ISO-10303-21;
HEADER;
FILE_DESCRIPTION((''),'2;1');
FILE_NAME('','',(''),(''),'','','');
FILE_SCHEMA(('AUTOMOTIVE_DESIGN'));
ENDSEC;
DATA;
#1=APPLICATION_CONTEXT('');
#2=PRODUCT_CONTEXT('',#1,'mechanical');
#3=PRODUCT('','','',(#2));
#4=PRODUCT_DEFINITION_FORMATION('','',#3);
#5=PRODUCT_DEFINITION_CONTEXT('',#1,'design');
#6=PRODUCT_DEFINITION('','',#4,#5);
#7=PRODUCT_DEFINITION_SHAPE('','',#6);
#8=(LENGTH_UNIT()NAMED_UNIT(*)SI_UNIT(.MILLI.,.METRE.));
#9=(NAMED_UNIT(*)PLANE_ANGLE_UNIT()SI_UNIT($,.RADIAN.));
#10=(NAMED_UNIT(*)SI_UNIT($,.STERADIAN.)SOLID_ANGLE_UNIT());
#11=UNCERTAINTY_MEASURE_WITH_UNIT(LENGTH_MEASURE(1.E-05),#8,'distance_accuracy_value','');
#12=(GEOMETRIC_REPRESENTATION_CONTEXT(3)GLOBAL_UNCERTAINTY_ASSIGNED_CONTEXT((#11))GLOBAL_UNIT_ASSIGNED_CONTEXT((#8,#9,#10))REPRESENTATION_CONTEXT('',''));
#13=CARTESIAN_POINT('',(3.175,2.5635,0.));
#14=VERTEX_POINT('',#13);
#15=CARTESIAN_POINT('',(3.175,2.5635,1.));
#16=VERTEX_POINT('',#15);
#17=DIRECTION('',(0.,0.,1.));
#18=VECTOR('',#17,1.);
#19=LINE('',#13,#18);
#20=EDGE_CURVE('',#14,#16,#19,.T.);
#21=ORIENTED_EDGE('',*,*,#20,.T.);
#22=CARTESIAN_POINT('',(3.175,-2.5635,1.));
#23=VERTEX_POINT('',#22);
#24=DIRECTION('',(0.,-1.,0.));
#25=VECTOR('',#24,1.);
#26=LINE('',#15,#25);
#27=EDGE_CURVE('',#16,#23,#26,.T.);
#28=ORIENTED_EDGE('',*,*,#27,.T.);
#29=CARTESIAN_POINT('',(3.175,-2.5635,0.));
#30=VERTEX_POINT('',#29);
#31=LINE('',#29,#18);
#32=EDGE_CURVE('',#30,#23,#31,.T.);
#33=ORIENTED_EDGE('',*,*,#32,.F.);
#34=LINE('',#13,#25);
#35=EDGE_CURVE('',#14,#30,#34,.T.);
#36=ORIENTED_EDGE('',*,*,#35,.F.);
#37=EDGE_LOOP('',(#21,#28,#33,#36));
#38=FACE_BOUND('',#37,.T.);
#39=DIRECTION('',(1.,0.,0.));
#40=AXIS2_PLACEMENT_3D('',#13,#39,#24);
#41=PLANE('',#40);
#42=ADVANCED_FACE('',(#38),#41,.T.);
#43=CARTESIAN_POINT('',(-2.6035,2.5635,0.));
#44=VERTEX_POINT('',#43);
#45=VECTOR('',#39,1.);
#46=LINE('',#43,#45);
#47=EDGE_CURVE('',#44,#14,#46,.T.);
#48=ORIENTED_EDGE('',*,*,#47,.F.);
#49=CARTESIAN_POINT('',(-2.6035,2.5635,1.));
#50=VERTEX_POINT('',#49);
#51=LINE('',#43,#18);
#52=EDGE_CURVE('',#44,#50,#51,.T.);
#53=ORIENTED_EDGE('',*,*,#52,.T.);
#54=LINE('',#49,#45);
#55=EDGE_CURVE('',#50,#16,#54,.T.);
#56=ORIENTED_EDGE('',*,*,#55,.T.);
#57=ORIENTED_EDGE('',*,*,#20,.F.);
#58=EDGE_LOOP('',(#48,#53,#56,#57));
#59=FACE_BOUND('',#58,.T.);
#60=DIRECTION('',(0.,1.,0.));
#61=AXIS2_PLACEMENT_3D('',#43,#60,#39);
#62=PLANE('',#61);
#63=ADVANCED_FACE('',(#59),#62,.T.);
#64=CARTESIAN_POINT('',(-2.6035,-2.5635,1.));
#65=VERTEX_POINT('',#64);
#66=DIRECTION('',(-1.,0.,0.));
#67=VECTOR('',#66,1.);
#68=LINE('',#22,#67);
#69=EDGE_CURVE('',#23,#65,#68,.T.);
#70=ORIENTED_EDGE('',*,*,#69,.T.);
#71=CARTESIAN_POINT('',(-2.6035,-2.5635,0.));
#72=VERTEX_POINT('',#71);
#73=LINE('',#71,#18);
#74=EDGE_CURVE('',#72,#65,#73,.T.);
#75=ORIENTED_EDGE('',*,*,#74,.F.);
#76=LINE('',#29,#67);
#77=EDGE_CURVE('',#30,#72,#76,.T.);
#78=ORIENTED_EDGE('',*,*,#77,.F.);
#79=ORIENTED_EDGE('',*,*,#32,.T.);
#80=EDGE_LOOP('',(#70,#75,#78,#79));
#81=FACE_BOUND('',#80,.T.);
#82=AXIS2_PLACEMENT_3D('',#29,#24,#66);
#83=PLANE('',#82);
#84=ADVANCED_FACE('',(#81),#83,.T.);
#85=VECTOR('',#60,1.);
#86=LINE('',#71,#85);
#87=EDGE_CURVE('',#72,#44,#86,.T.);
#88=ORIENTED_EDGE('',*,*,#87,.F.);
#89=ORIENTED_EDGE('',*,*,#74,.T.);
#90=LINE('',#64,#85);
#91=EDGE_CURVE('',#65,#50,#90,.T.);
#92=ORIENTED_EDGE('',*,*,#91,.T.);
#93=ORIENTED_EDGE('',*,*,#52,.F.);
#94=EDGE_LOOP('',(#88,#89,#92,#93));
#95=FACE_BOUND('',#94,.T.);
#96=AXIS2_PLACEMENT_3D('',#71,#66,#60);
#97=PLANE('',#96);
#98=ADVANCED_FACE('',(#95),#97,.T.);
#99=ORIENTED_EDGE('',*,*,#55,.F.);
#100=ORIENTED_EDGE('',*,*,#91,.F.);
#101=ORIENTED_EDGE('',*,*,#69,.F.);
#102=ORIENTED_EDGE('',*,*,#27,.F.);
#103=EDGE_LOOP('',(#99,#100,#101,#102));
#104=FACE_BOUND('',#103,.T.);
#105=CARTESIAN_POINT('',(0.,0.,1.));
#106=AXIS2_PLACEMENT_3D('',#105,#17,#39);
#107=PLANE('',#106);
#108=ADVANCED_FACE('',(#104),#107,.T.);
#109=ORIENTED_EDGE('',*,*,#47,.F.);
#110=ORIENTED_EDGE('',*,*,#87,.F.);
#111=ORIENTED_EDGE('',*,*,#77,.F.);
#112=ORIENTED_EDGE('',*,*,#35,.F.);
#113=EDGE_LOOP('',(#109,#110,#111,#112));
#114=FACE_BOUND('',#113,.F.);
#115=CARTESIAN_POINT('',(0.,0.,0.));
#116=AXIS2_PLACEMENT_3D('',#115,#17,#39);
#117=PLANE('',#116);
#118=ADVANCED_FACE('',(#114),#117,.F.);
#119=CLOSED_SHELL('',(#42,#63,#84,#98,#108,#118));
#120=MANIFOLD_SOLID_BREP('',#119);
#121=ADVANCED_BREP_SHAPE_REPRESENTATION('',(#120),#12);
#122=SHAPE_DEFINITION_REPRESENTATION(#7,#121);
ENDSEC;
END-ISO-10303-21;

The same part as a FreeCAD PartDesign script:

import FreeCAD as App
import Part
import Sketcher
Q = App.Units.Quantity

doc = App.newDocument("Part")
params = doc.addObject("Spreadsheet::Sheet", "Params")
for row, (alias, value) in enumerate([
    ("pad1_length", "1 mm"),
], start=1):
    params.set(f"A{row}", alias)
    params.set(f"B{row}", "=" + value)
    params.setAlias(f"B{row}", alias)

body = doc.addObject("PartDesign::Body", "Body")

# Sketch on XY plane
sketch1 = body.newObject("Sketcher::SketchObject", "Sketch")
sketch1.AttachmentSupport = (doc.getObject("XY_Plane"), [""])
sketch1.MapMode = "FlatFace"
sketch1.addGeometry([
    Part.LineSegment(App.Vector(3, 3, 0), App.Vector(-3, 3, 0)),
    Part.LineSegment(App.Vector(-3, 3, 0), App.Vector(-3, -3, 0)),
    Part.LineSegment(App.Vector(-3, -3, 0), App.Vector(3, -3, 0)),
    Part.LineSegment(App.Vector(3, -3, 0), App.Vector(3, 3, 0)),
], False)
sketch1.addConstraint([
    Sketcher.Constraint("Coincident", 0, 2, 1, 1),
    Sketcher.Constraint("Coincident", 1, 2, 2, 1),
    Sketcher.Constraint("Coincident", 2, 2, 3, 1),
    Sketcher.Constraint("Coincident", 3, 2, 0, 1),
    Sketcher.Constraint("Horizontal", 0),
    Sketcher.Constraint("Vertical", 1),
    Sketcher.Constraint("Horizontal", 2),
    Sketcher.Constraint("Vertical", 3),
    Sketcher.Constraint("DistanceY", 1, 2, 1, 1, Q("5.127 mm")),
    Sketcher.Constraint("DistanceX", 0, 2, 0, 1, Q("5.7785 mm")),
    Sketcher.Constraint("DistanceX", -1, 1, 2, 2, Q("3.175 mm")),
    Sketcher.Constraint("DistanceY", -1, 1, 0, 2, Q("2.5635 mm")),
])
pad1 = body.newObject("PartDesign::Pad", "Pad")
pad1.Profile = sketch1
pad1.setExpression("Length", "Params.pad1_length")

doc.recompute()
